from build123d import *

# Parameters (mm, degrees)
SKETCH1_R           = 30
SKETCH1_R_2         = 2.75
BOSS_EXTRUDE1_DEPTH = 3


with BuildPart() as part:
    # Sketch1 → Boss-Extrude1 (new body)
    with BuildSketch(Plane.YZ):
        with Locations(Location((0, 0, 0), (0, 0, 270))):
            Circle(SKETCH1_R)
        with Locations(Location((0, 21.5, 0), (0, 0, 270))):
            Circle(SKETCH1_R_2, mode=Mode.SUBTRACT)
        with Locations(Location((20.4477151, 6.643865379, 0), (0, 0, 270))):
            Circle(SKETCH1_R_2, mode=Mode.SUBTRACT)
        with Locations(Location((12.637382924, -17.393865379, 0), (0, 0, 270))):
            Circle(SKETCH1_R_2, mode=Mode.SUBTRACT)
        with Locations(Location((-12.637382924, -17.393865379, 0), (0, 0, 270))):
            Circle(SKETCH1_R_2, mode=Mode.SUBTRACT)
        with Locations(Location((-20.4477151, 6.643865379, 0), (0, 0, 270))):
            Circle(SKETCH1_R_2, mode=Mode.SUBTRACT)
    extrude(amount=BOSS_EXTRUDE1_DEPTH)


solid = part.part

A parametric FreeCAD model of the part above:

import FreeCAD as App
import Part
import Sketcher
from FreeCAD import Vector
Q = App.Units.Quantity

doc = App.newDocument("Part")
body = doc.addObject("PartDesign::Body", "Body")

# Sketch on YZ plane
sketch1 = body.newObject("Sketcher::SketchObject", "Sketch")
sketch1.AttachmentSupport = (doc.getObject("YZ_Plane"), [""])
sketch1.MapMode = "FlatFace"
sketch1.addGeometry([
    Part.Circle(Vector(0, 0, 0), Vector(0, 0, 1), 30),  # 0
    Part.Circle(Vector(-20.447715, 6.643865, 0), Vector(0, 0, 1), 2.75),  # 1
    Part.Circle(Vector(0, 21.5, 0), Vector(0, 0, 1), 2.75),  # 2
    Part.Circle(Vector(-12.637383, -17.393865, 0), Vector(0, 0, 1), 2.75),  # 3
    Part.Circle(Vector(20.447715, 6.643865, 0), Vector(0, 0, 1), 2.75),  # 4
    Part.Circle(Vector(12.637383, -17.393865, 0), Vector(0, 0, 1), 2.75),  # 5
], False)
sketch1.addConstraint([
    Sketcher.Constraint("Coincident", 0, 3, -1, 1),
    Sketcher.Constraint("Equal", 1, 2),
    Sketcher.Constraint("Equal", 2, 3),
    Sketcher.Constraint("Equal", 3, 4),
    Sketcher.Constraint("Equal", 4, 5),
    Sketcher.Constraint("Symmetric", 1, 3, 4, 3, -2),
    Sketcher.Constraint("Symmetric", 3, 3, 5, 3, -2),
    Sketcher.Constraint("PointOnObject", 2, 3, -2),
    Sketcher.Constraint("Diameter", 0, Q("60 mm")),
    Sketcher.Constraint("Diameter", 1, Q("5.5 mm")),
    Sketcher.Constraint("DistanceY", -1, 1, 2, 3, Q("21.5 mm")),
    Sketcher.Constraint("DistanceX", 3, 3, 4, 3, Q("33.085098 mm")),
    Sketcher.Constraint("DistanceY", 3, 3, 1, 3, Q("24.037731 mm")),
    Sketcher.Constraint("DistanceX", 1, 3, 4, 3, Q("40.89543 mm")),
    Sketcher.Constraint("DistanceY", -1, 1, 1, 3, Q("6.643865 mm")),
])
pad1 = body.newObject("PartDesign::Pad", "Pad")
pad1.Profile = sketch1
pad1.Length = 3

doc.recompute()
